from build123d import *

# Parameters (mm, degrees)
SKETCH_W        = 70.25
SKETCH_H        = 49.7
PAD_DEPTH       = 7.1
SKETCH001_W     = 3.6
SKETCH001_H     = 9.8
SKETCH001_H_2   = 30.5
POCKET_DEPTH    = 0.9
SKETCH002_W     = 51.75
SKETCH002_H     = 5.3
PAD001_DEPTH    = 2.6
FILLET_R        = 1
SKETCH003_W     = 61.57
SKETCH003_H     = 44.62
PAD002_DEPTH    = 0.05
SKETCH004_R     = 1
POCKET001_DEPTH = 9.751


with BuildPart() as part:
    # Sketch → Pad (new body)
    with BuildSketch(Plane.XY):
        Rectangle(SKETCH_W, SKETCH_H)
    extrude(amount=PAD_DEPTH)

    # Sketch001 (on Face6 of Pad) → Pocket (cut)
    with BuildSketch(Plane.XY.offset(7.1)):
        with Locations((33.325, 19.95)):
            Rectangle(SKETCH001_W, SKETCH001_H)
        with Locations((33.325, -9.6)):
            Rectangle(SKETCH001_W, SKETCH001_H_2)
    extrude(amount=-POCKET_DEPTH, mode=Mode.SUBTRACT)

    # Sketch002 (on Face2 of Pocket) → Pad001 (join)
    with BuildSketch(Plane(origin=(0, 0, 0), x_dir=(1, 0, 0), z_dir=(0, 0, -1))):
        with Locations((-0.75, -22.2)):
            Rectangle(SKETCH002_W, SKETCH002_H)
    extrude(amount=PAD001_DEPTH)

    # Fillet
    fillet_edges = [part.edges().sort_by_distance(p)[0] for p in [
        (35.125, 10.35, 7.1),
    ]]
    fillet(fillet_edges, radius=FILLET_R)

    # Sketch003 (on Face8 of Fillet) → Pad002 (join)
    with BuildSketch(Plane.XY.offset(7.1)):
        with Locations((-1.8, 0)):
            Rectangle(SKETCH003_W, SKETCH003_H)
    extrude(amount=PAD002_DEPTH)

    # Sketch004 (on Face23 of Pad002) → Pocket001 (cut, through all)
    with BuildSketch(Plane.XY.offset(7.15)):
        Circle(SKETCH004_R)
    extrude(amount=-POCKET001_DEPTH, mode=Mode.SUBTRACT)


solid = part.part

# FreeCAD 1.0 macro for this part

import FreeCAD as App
import Part
import Sketcher
from FreeCAD import Vector


def edges_at(feature, points):
    """Names of the edges that pass closest to the given points."""
    edges = feature.Shape.Edges
    near = lambda p: min(range(len(edges)), key=lambda i: edges[i].distToShape(Part.Vertex(*p))[0])
    return sorted({f"Edge{near(p) + 1}" for p in points})

doc = App.newDocument("Part")
body = doc.addObject("PartDesign::Body", "Body")

# Sketch on XY plane
sketch1 = body.newObject("Sketcher::SketchObject", "Sketch")
sketch1.AttachmentSupport = (doc.getObject("XY_Plane"), [""])
sketch1.MapMode = "FlatFace"
sketch1.addGeometry(Part.LineSegment(Vector(-35, 25, 0), Vector(-35, -25, 0)), False)
sketch1.addGeometry(Part.LineSegment(Vector(-35, -25, 0), Vector(35, -25, 0)), False)
sketch1.addGeometry(Part.LineSegment(Vector(35, -25, 0), Vector(35, 25, 0)), False)
sketch1.addGeometry(Part.LineSegment(Vector(35, 25, 0), Vector(-35, 25, 0)), False)
sketch1.addConstraint(Sketcher.Constraint("Coincident", 0, 2, 1, 1))
sketch1.addConstraint(Sketcher.Constraint("Coincident", 1, 2, 2, 1))
sketch1.addConstraint(Sketcher.Constraint("Coincident", 2, 2, 3, 1))
sketch1.addConstraint(Sketcher.Constraint("Coincident", 3, 2, 0, 1))
sketch1.addConstraint(Sketcher.Constraint("Vertical", 0))
sketch1.addConstraint(Sketcher.Constraint("Horizontal", 1))
sketch1.addConstraint(Sketcher.Constraint("Vertical", 2))
sketch1.addConstraint(Sketcher.Constraint("Horizontal", 3))
sketch1.addConstraint(Sketcher.Constraint("Symmetric", 0, 2, 2, 2, -1, 1))
sketch1.addConstraint(Sketcher.Constraint("DistanceY", 0, 2, 0, 1, 49.7))
sketch1.addConstraint(Sketcher.Constraint("DistanceX", 1, 1, 1, 2, 70.25))
pad1 = body.newObject("PartDesign::Pad", "Pad")
pad1.Profile = sketch1
pad1.Length = 7.1

# Sketch on XY plane
sketch2 = body.newObject("Sketcher::SketchObject", "Sketch001")
sketch2.AttachmentSupport = (doc.getObject("XY_Plane"), [""])
sketch2.MapMode = "FlatFace"
sketch2.AttachmentOffset = App.Placement(Vector(0, 0, 7.1), App.Rotation())
sketch2.addGeometry(Part.LineSegment(Vector(31.5, 24.9, 0), Vector(31.5, 15.1, 0)), False)
sketch2.addGeometry(Part.LineSegment(Vector(31.5, 15.1, 0), Vector(35.1, 15.1, 0)), False)
sketch2.addGeometry(Part.LineSegment(Vector(35.1, 15.1, 0), Vector(35.1, 24.9, 0)), False)
sketch2.addGeometry(Part.LineSegment(Vector(35.1, 24.9, 0), Vector(31.5, 24.9, 0)), False)
sketch2.addGeometry(Part.LineSegment(Vector(31.5, 5.7, 0), Vector(31.5, -24.9, 0)), False)
sketch2.addGeometry(Part.LineSegment(Vector(31.5, -24.9, 0), Vector(35.1, -24.9, 0)), False)
sketch2.addGeometry(Part.LineSegment(Vector(35.1, -24.9, 0), Vector(35.1, 5.7, 0)), False)
sketch2.addGeometry(Part.LineSegment(Vector(35.1, 5.7, 0), Vector(31.5, 5.7, 0)), False)
sketch2.addConstraint(Sketcher.Constraint("Coincident", 0, 2, 1, 1))
sketch2.addConstraint(Sketcher.Constraint("Coincident", 1, 2, 2, 1))
sketch2.addConstraint(Sketcher.Constraint("Coincident", 2, 2, 3, 1))
sketch2.addConstraint(Sketcher.Constraint("Coincident", 3, 2, 0, 1))
sketch2.addConstraint(Sketcher.Constraint("Coincident", 4, 2, 5, 1))
sketch2.addConstraint(Sketcher.Constraint("Coincident", 5, 2, 6, 1))
sketch2.addConstraint(Sketcher.Constraint("Coincident", 6, 2, 7, 1))
sketch2.addConstraint(Sketcher.Constraint("Coincident", 7, 2, 4, 1))
sketch2.addConstraint(Sketcher.Constraint("Vertical", 0))
sketch2.addConstraint(Sketcher.Constraint("Horizontal", 1))
sketch2.addConstraint(Sketcher.Constraint("Vertical", 2))
sketch2.addConstraint(Sketcher.Constraint("Horizontal", 3))
sketch2.addConstraint(Sketcher.Constraint("Vertical", 4))
sketch2.addConstraint(Sketcher.Constraint("Horizontal", 5))
sketch2.addConstraint(Sketcher.Constraint("Vertical", 6))
sketch2.addConstraint(Sketcher.Constraint("Horizontal", 7))
sketch2.addConstraint(Sketcher.Constraint("Symmetric", 3, 2, 4, 2, -1))
sketch2.addConstraint(Sketcher.Constraint("Vertical", 2, 2, 5, 2))
sketch2.addConstraint(Sketcher.Constraint("DistanceX", 1, 1, 1, 2, 3.6))
sketch2.addConstraint(Sketcher.Constraint("DistanceY", 0, 2, 0, 1, 9.8))
sketch2.addConstraint(Sketcher.Constraint("DistanceY", 4, 2, 4, 1, 30.5))
sketch2.addConstraint(Sketcher.Constraint("DistanceY", 4, 2, 0, 2, 39.9))
sketch2.addConstraint(Sketcher.Constraint("DistanceX", -1, 1, 0, 2, 31.525))
pocket1 = body.newObject("PartDesign::Pocket", "Pocket")
pocket1.Profile = sketch2
pocket1.Length = 0.9

# Sketch on XY plane
sketch3 = body.newObject("Sketcher::SketchObject", "Sketch002")
sketch3.AttachmentSupport = (doc.getObject("XY_Plane"), [""])
sketch3.MapMode = "FlatFace"
sketch3.addGeometry(Part.LineSegment(Vector(-27, 20, 0), Vector(-27, 25, 0)), False)
sketch3.addGeometry(Part.LineSegment(Vector(-27, 25, 0), Vector(25, 25, 0)), False)
sketch3.addGeometry(Part.LineSegment(Vector(25, 25, 0), Vector(25, 20, 0)), False)
sketch3.addGeometry(Part.LineSegment(Vector(25, 20, 0), Vector(-27, 20, 0)), False)
sketch3.addConstraint(Sketcher.Constraint("Coincident", 0, 2, 1, 1))
sketch3.addConstraint(Sketcher.Constraint("Coincident", 1, 2, 2, 1))
sketch3.addConstraint(Sketcher.Constraint("Coincident", 2, 2, 3, 1))
sketch3.addConstraint(Sketcher.Constraint("Coincident", 3, 2, 0, 1))
sketch3.addConstraint(Sketcher.Constraint("Vertical", 0))
sketch3.addConstraint(Sketcher.Constraint("Horizontal", 1))
sketch3.addConstraint(Sketcher.Constraint("Vertical", 2))
sketch3.addConstraint(Sketcher.Constraint("Horizontal", 3))
sketch3.addConstraint(Sketcher.Constraint("DistanceY", 0, 1, 0, 2, 5.3))
sketch3.addConstraint(Sketcher.Constraint("DistanceX", 1, 1, 1, 2, 51.75))
sketch3.addConstraint(Sketcher.Constraint("DistanceY", -1, 1, 0, 2, 24.85))
sketch3.addConstraint(Sketcher.Constraint("DistanceX", 0, 2, -1, 1, 26.625))
pad2 = body.newObject("PartDesign::Pad", "Pad001")
pad2.Profile = sketch3
pad2.Length = 2.6
pad2.Reversed = True
doc.recompute()

fillet = body.newObject("PartDesign::Fillet", "Fillet")
fillet.Base = (pad2, edges_at(pad2, [(35.125, 10.35, 7.1)]))
fillet.Radius = 1

# Sketch on XY plane
sketch4 = body.newObject("Sketcher::SketchObject", "Sketch003")
sketch4.AttachmentSupport = (doc.getObject("XY_Plane"), [""])
sketch4.MapMode = "FlatFace"
sketch4.AttachmentOffset = App.Placement(Vector(0, 0, 7.1), App.Rotation())
sketch4.addGeometry(Part.LineSegment(Vector(-33, 22, 0), Vector(-33, -22, 0)), False)
sketch4.addGeometry(Part.LineSegment(Vector(-33, -22, 0), Vector(29, -22, 0)), False)
sketch4.addGeometry(Part.LineSegment(Vector(29, -22, 0), Vector(29, 22, 0)), False)
sketch4.addGeometry(Part.LineSegment(Vector(29, 22, 0), Vector(-33, 22, 0)), False)
sketch4.addConstraint(Sketcher.Constraint("Coincident", 0, 2, 1, 1))
sketch4.addConstraint(Sketcher.Constraint("Coincident", 1, 2, 2, 1))
sketch4.addConstraint(Sketcher.Constraint("Coincident", 2, 2, 3, 1))
sketch4.addConstraint(Sketcher.Constraint("Coincident", 3, 2, 0, 1))
sketch4.addConstraint(Sketcher.Constraint("Vertical", 0))
sketch4.addConstraint(Sketcher.Constraint("Horizontal", 1))
sketch4.addConstraint(Sketcher.Constraint("Vertical", 2))
sketch4.addConstraint(Sketcher.Constraint("Horizontal", 3))
sketch4.addConstraint(Sketcher.Constraint("DistanceX", 1, 1, 1, 2, 61.57))
sketch4.addConstraint(Sketcher.Constraint("DistanceY", 0, 2, 0, 1, 44.62))
sketch4.addConstraint(Sketcher.Constraint("DistanceY", 0, 2, -1, 1, 22.31))
sketch4.addConstraint(Sketcher.Constraint("DistanceX", 0, 2, -1, 1, 32.585))
pad3 = body.newObject("PartDesign::Pad", "Pad002")
pad3.Profile = sketch4
pad3.Length = 0.05

# Sketch on XY plane
sketch5 = body.newObject("Sketcher::SketchObject", "Sketch004")
sketch5.AttachmentSupport = (doc.getObject("XY_Plane"), [""])
sketch5.MapMode = "FlatFace"
sketch5.AttachmentOffset = App.Placement(Vector(0, 0, 7.15), App.Rotation())
sketch5.addGeometry(Part.Circle(Vector(0, 0, 0), Vector(0, 0, 1), 1), False)
sketch5.addConstraint(Sketcher.Constraint("Coincident", 0, 3, -1, 1))
sketch5.addConstraint(Sketcher.Constraint("Diameter", 0, 2.0))
pocket2 = body.newObject("PartDesign::Pocket", "Pocket001")
pocket2.Profile = sketch5
pocket2.Type = "ThroughAll"

doc.recompute()
